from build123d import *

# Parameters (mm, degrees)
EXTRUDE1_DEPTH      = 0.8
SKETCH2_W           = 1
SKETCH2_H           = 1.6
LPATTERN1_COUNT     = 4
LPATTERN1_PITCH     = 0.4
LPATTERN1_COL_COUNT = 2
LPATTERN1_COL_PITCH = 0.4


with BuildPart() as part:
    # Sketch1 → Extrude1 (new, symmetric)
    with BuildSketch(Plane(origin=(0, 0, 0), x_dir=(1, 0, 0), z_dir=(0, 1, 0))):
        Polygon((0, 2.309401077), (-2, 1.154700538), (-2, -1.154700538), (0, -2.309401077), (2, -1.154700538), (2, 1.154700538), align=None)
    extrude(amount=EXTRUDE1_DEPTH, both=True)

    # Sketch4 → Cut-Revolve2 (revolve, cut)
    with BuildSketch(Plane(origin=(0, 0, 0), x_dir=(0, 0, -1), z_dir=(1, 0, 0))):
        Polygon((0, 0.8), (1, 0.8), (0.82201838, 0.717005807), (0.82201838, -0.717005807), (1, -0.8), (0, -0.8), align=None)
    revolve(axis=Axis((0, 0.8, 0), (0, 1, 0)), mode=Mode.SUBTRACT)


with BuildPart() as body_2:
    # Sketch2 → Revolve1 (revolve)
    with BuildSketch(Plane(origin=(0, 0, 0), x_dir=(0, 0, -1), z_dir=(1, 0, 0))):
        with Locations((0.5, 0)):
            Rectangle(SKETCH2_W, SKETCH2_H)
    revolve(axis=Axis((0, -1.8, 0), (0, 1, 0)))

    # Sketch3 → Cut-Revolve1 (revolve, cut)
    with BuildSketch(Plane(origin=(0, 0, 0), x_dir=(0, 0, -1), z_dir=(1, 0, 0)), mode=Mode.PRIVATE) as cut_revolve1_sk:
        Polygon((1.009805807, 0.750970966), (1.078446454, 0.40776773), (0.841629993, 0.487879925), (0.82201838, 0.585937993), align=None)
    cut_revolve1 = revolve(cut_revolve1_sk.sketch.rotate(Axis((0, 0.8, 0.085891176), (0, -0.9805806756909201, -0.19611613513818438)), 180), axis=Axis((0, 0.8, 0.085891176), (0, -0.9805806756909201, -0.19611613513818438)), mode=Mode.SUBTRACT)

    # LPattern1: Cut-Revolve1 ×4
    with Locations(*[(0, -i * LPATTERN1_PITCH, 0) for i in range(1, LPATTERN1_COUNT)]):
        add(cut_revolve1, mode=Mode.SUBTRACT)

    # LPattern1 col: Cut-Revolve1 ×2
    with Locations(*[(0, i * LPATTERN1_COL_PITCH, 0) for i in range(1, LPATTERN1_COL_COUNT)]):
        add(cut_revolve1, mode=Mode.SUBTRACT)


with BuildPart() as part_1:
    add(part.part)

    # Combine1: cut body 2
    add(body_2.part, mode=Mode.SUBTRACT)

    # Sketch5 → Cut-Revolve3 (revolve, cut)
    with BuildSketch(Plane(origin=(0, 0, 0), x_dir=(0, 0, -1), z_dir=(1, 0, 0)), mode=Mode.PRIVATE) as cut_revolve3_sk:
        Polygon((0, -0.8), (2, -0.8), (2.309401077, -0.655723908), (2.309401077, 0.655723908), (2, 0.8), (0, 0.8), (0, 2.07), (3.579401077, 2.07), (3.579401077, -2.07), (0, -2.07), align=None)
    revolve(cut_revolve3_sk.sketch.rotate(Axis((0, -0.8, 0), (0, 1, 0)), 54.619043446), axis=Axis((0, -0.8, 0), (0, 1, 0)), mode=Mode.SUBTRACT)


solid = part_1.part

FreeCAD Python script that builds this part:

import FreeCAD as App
import Part
import Sketcher
Q = App.Units.Quantity

doc = App.newDocument("Part")
body = doc.addObject("PartDesign::Body", "Body")

sketch1 = body.newObject("Sketcher::SketchObject", "Sketch")
sketch1.AttachmentSupport = (doc.getObject("XZ_Plane"), [""])
sketch1.MapMode = "FlatFace"
sketch1.addGeometry(Part.LineSegment(App.Vector(0, -2.309401, 0), App.Vector(-2, -1.154701, 0)), False)
sketch1.addGeometry(Part.LineSegment(App.Vector(-2, -1.154701, 0), App.Vector(-2, 1.154701, 0)), False)
sketch1.addGeometry(Part.LineSegment(App.Vector(-2, 1.154701, 0), App.Vector(0, 2.309401, 0)), False)
sketch1.addGeometry(Part.LineSegment(App.Vector(0, 2.309401, 0), App.Vector(2, 1.154701, 0)), False)
sketch1.addGeometry(Part.LineSegment(App.Vector(2, 1.154701, 0), App.Vector(2, -1.154701, 0)), False)
sketch1.addGeometry(Part.LineSegment(App.Vector(2, -1.154701, 0), App.Vector(0, -2.309401, 0)), False)
sketch1.addConstraint(Sketcher.Constraint("Coincident", 0, 2, 1, 1))
sketch1.addConstraint(Sketcher.Constraint("Coincident", 1, 2, 2, 1))
sketch1.addConstraint(Sketcher.Constraint("Coincident", 2, 2, 3, 1))
sketch1.addConstraint(Sketcher.Constraint("Coincident", 3, 2, 4, 1))
sketch1.addConstraint(Sketcher.Constraint("Coincident", 4, 2, 5, 1))
sketch1.addConstraint(Sketcher.Constraint("Coincident", 5, 2, 0, 1))
sketch1.addConstraint(Sketcher.Constraint("Vertical", 1))
sketch1.addConstraint(Sketcher.Constraint("Vertical", 4))
sketch1.addConstraint(Sketcher.Constraint("Symmetric", 0, 2, 3, 2, -1, 1))
sketch1.addConstraint(Sketcher.Constraint("Symmetric", 2, 2, 5, 2, -1, 1))
sketch1.addConstraint(Sketcher.Constraint("PointOnObject", 2, 2, -2))
sketch1.addConstraint(Sketcher.Constraint("Parallel", 2, 5))
sketch1.addConstraint(Sketcher.Constraint("Horizontal", 1, 2, 3, 2))
sketch1.addConstraint(Sketcher.Constraint("Angle", 0, Q("150 deg")))
sketch1.addConstraint(Sketcher.Constraint("DistanceX", 0, 2, -1, 1, Q("2 mm")))
sketch1.addConstraint(Sketcher.Constraint("DistanceY", 1, 1, 1, 2, Q("2.309401 mm")))
pad1 = body.newObject("PartDesign::Pad", "Pad")
pad1.Profile = sketch1
pad1.Length = 1.6
pad1.Midplane = True

sketch2 = body.newObject("Sketcher::SketchObject", "Sketch001")
sketch2.AttachmentSupport = (doc.getObject("YZ_Plane"), [""])
sketch2.MapMode = "FlatFace"
sketch2.addGeometry(Part.LineSegment(App.Vector(0.8, -1, 0), App.Vector(0.8, 0, 0)), False)
sketch2.addGeometry(Part.LineSegment(App.Vector(0.8, 0, 0), App.Vector(-0.8, 0, 0)), False)
sketch2.addGeometry(Part.LineSegment(App.Vector(-0.8, 0, 0), App.Vector(-0.8, -1, 0)), False)
sketch2.addGeometry(Part.LineSegment(App.Vector(-0.8, -1, 0), App.Vector(-0.717006, -0.822018, 0)), False)
sketch2.addGeometry(Part.LineSegment(App.Vector(-0.717006, -0.822018, 0), App.Vector(0.717006, -0.822018, 0)), False)
sketch2.addGeometry(Part.LineSegment(App.Vector(0.717006, -0.822018, 0), App.Vector(0.8, -1, 0)), False)
sketch2.addConstraint(Sketcher.Constraint("Coincident", 0, 2, 1, 1))
sketch2.addConstraint(Sketcher.Constraint("Coincident", 1, 2, 2, 1))
sketch2.addConstraint(Sketcher.Constraint("Coincident", 2, 2, 3, 1))
sketch2.addConstraint(Sketcher.Constraint("Coincident", 3, 2, 4, 1))
sketch2.addConstraint(Sketcher.Constraint("Coincident", 4, 2, 5, 1))
sketch2.addConstraint(Sketcher.Constraint("Coincident", 5, 2, 0, 1))
sketch2.addConstraint(Sketcher.Constraint("Vertical", 0))
sketch2.addConstraint(Sketcher.Constraint("Horizontal", 1))
sketch2.addConstraint(Sketcher.Constraint("Vertical", 2))
sketch2.addConstraint(Sketcher.Constraint("Horizontal", 4))
sketch2.addConstraint(Sketcher.Constraint("Symmetric", 0, 2, 1, 2, -1, 1))
sketch2.addConstraint(Sketcher.Constraint("Horizontal", 2, 2, 5, 2))
sketch2.addConstraint(Sketcher.Constraint("Equal", 3, 5))
sketch2.addConstraint(Sketcher.Constraint("DistanceY", 0, 1, 0, 2, Q("1 mm")))
sketch2.addConstraint(Sketcher.Constraint("Angle", 3, Q("65 deg")))
sketch2.addConstraint(Sketcher.Constraint("DistanceX", 1, 2, 1, 1, Q("1.6 mm")))
sketch2.addConstraint(Sketcher.Constraint("DistanceX", 4, 1, 4, 2, Q("1.434012 mm")))
groove = body.newObject("PartDesign::Groove", "Groove")
groove.Profile = sketch2
groove.ReferenceAxis = (sketch2, ["H_Axis"])
groove.Angle = 360
body2 = doc.addObject("PartDesign::Body", "Body001")

sketch3 = body2.newObject("Sketcher::SketchObject", "Sketch002")
sketch3.AttachmentSupport = (doc.getObject("YZ_Plane001"), [""])
sketch3.MapMode = "FlatFace"
sketch3.addGeometry(Part.LineSegment(App.Vector(0.8, 0, 0), App.Vector(-0.8, 0, 0)), False)
sketch3.addGeometry(Part.LineSegment(App.Vector(-0.8, 0, 0), App.Vector(-0.8, -1, 0)), False)
sketch3.addGeometry(Part.LineSegment(App.Vector(-0.8, -1, 0), App.Vector(0.8, -1, 0)), False)
sketch3.addGeometry(Part.LineSegment(App.Vector(0.8, -1, 0), App.Vector(0.8, 0, 0)), False)
sketch3.addConstraint(Sketcher.Constraint("Coincident", 0, 2, 1, 1))
sketch3.addConstraint(Sketcher.Constraint("Coincident", 1, 2, 2, 1))
sketch3.addConstraint(Sketcher.Constraint("Coincident", 2, 2, 3, 1))
sketch3.addConstraint(Sketcher.Constraint("Coincident", 3, 2, 0, 1))
sketch3.addConstraint(Sketcher.Constraint("Horizontal", 0))
sketch3.addConstraint(Sketcher.Constraint("Vertical", 1))
sketch3.addConstraint(Sketcher.Constraint("Horizontal", 2))
sketch3.addConstraint(Sketcher.Constraint("Vertical", 3))
sketch3.addConstraint(Sketcher.Constraint("Symmetric", 0, 2, 3, 2, -1, 1))
sketch3.addConstraint(Sketcher.Constraint("DistanceY", 1, 2, 1, 1, Q("1 mm")))
sketch3.addConstraint(Sketcher.Constraint("DistanceX", 0, 2, 0, 1, Q("1.6 mm")))
revolution = body2.newObject("PartDesign::Revolution", "Revolution")
revolution.Profile = sketch3
revolution.ReferenceAxis = (sketch3, ["H_Axis"])
revolution.Angle = 360

sketch4 = body2.newObject("Sketcher::SketchObject", "Sketch003")
sketch4.AttachmentSupport = (doc.getObject("YZ_Plane001"), [""])
sketch4.MapMode = "FlatFace"
sketch4.addGeometry(Part.LineSegment(App.Vector(0.407768, -1.078446, 0), App.Vector(0.750971, -1.009806, 0)), False)
sketch4.addGeometry(Part.LineSegment(App.Vector(0.750971, -1.009806, 0), App.Vector(0.585938, -0.822018, 0)), False)
sketch4.addGeometry(Part.LineSegment(App.Vector(0.585938, -0.822018, 0), App.Vector(0.48788, -0.84163, 0)), False)
sketch4.addGeometry(Part.LineSegment(App.Vector(0.48788, -0.84163, 0), App.Vector(0.407768, -1.078446, 0)), False)
sketch4.addGeometry(Part.LineSegment(App.Vector(0.542146, 0.03432, 0), App.Vector(0.198943, -0.03432, 0)), True)
sketch4.addConstraint(Sketcher.Constraint("Coincident", 0, 2, 1, 1))
sketch4.addConstraint(Sketcher.Constraint("Coincident", 1, 2, 2, 1))
sketch4.addConstraint(Sketcher.Constraint("Coincident", 2, 2, 3, 1))
sketch4.addConstraint(Sketcher.Constraint("Coincident", 3, 2, 0, 1))
sketch4.addConstraint(Sketcher.Constraint("Parallel", 0, 2))
sketch4.addConstraint(Sketcher.Constraint("Parallel", 2, 4))
sketch4.addConstraint(Sketcher.Constraint("Equal", 1, 3))
sketch4.addConstraint(Sketcher.Constraint("Equal", 0, 4))
sketch4.addConstraint(Sketcher.Constraint("Distance", 2, Q("0.1 mm")))
sketch4.addConstraint(Sketcher.Constraint("Distance", 0, Q("0.35 mm")))
sketch4.addConstraint(Sketcher.Constraint("Distance", 1, Q("0.25 mm")))
sketch4.addConstraint(Sketcher.Constraint("DistanceY", 1, 2, 4, 2, Q("0.787698 mm")))
sketch4.addConstraint(Sketcher.Constraint("DistanceX", -1, 1, 0, 2, Q("0.750971 mm")))
sketch4.addConstraint(Sketcher.Constraint("DistanceY", 1, 2, -1, 1, Q("0.822018 mm")))
sketch4.addConstraint(Sketcher.Constraint("DistanceX", -1, 1, 2, 2, Q("0.48788 mm")))
sketch4.addConstraint(Sketcher.Constraint("DistanceX", 3, 2, 4, 1, Q("0.134378 mm")))
groove2 = body2.newObject("PartDesign::Groove", "Groove001")
groove2.Profile = sketch4
groove2.ReferenceAxis = (sketch4, ["Axis0"])
groove2.Angle = 360
doc.recompute()

linearpattern = body2.newObject("PartDesign::LinearPattern", "LinearPattern")
linearpattern.Originals = [groove2]
linearpattern.Direction = (doc.getObject("Y_Axis001"), [""])
linearpattern.Mode = "offset"
linearpattern.Offset = 0.4
linearpattern.Occurrences = 4
linearpattern.Reversed = True
body2.Tip = linearpattern
doc.recompute()

linearpattern2 = body2.newObject("PartDesign::LinearPattern", "LinearPattern001")
linearpattern2.Originals = [groove2]
linearpattern2.Direction = (doc.getObject("Y_Axis001"), [""])
linearpattern2.Mode = "offset"
linearpattern2.Offset = 0.4
linearpattern2.Occurrences = 2
body2.Tip = linearpattern2
doc.recompute()

boolean = body.newObject("PartDesign::Boolean", "Boolean")
boolean.Type = "Cut"
boolean.addObjects([body2])

sketch5 = body.newObject("Sketcher::SketchObject", "Sketch004")
sketch5.AttachmentSupport = (doc.getObject("YZ_Plane"), [""])
sketch5.MapMode = "FlatFace"
sketch5.addGeometry(Part.LineSegment(App.Vector(-0.8, -2, 0), App.Vector(-0.8, 0, 0)), False)
sketch5.addGeometry(Part.LineSegment(App.Vector(-0.8, 0, 0), App.Vector(-2.07, 0, 0)), False)
sketch5.addGeometry(Part.LineSegment(App.Vector(-2.07, 0, 0), App.Vector(-2.07, -3.579401, 0)), False)
sketch5.addGeometry(Part.LineSegment(App.Vector(-2.07, -3.579401, 0), App.Vector(2.07, -3.579401, 0)), False)
sketch5.addGeometry(Part.LineSegment(App.Vector(2.07, -3.579401, 0), App.Vector(2.07, 0, 0)), False)
sketch5.addGeometry(Part.LineSegment(App.Vector(2.07, 0, 0), App.Vector(0.8, 0, 0)), False)
sketch5.addGeometry(Part.LineSegment(App.Vector(0.8, 0, 0), App.Vector(0.8, -2, 0)), False)
sketch5.addGeometry(Part.LineSegment(App.Vector(0.8, -2, 0), App.Vector(0.655724, -2.309401, 0)), False)
sketch5.addGeometry(Part.LineSegment(App.Vector(0.655724, -2.309401, 0), App.Vector(-0.655724, -2.309401, 0)), False)
sketch5.addGeometry(Part.LineSegment(App.Vector(-0.655724, -2.309401, 0), App.Vector(-0.8, -2, 0)), False)
sketch5.addConstraint(Sketcher.Constraint("Coincident", 0, 2, 1, 1))
sketch5.addConstraint(Sketcher.Constraint("Coincident", 1, 2, 2, 1))
sketch5.addConstraint(Sketcher.Constraint("Coincident", 2, 2, 3, 1))
sketch5.addConstraint(Sketcher.Constraint("Coincident", 3, 2, 4, 1))
sketch5.addConstraint(Sketcher.Constraint("Coincident", 4, 2, 5, 1))
sketch5.addConstraint(Sketcher.Constraint("Coincident", 5, 2, 6, 1))
sketch5.addConstraint(Sketcher.Constraint("Coincident", 6, 2, 7, 1))
sketch5.addConstraint(Sketcher.Constraint("Coincident", 7, 2, 8, 1))
sketch5.addConstraint(Sketcher.Constraint("Coincident", 8, 2, 9, 1))
sketch5.addConstraint(Sketcher.Constraint("Coincident", 9, 2, 0, 1))
sketch5.addConstraint(Sketcher.Constraint("Vertical", 0))
sketch5.addConstraint(Sketcher.Constraint("Horizontal", 1))
sketch5.addConstraint(Sketcher.Constraint("Vertical", 2))
sketch5.addConstraint(Sketcher.Constraint("Horizontal", 3))
sketch5.addConstraint(Sketcher.Constraint("Vertical", 4))
sketch5.addConstraint(Sketcher.Constraint("Horizontal", 5))
sketch5.addConstraint(Sketcher.Constraint("Vertical", 6))
sketch5.addConstraint(Sketcher.Constraint("Horizontal", 8))
sketch5.addConstraint(Sketcher.Constraint("Symmetric", 1, 2, 4, 2, -1, 1))
sketch5.addConstraint(Sketcher.Constraint("Symmetric", 0, 2, 5, 2, -2))
sketch5.addConstraint(Sketcher.Constraint("Horizontal", 6, 2, 9, 2))
sketch5.addConstraint(Sketcher.Constraint("Equal", 7, 9))
sketch5.addConstraint(Sketcher.Constraint("DistanceY", 0, 1, 0, 2, Q("2 mm")))
sketch5.addConstraint(Sketcher.Constraint("Angle", 7, Q("-115 deg")))
sketch5.addConstraint(Sketcher.Constraint("DistanceX", 1, 2, 1, 1, Q("1.27 mm")))
sketch5.addConstraint(Sketcher.Constraint("DistanceX", 3, 1, 3, 2, Q("4.14 mm")))
sketch5.addConstraint(Sketcher.Constraint("DistanceY", 3, 2, 7, 2, Q("1.27 mm")))
sketch5.addConstraint(Sketcher.Constraint("DistanceY", 2, 2, 2, 1, Q("3.579401 mm")))
groove3 = body.newObject("PartDesign::Groove", "Groove002")
groove3.Profile = sketch5
groove3.ReferenceAxis = (sketch5, ["H_Axis"])
groove3.Angle = 360

doc.recompute()
